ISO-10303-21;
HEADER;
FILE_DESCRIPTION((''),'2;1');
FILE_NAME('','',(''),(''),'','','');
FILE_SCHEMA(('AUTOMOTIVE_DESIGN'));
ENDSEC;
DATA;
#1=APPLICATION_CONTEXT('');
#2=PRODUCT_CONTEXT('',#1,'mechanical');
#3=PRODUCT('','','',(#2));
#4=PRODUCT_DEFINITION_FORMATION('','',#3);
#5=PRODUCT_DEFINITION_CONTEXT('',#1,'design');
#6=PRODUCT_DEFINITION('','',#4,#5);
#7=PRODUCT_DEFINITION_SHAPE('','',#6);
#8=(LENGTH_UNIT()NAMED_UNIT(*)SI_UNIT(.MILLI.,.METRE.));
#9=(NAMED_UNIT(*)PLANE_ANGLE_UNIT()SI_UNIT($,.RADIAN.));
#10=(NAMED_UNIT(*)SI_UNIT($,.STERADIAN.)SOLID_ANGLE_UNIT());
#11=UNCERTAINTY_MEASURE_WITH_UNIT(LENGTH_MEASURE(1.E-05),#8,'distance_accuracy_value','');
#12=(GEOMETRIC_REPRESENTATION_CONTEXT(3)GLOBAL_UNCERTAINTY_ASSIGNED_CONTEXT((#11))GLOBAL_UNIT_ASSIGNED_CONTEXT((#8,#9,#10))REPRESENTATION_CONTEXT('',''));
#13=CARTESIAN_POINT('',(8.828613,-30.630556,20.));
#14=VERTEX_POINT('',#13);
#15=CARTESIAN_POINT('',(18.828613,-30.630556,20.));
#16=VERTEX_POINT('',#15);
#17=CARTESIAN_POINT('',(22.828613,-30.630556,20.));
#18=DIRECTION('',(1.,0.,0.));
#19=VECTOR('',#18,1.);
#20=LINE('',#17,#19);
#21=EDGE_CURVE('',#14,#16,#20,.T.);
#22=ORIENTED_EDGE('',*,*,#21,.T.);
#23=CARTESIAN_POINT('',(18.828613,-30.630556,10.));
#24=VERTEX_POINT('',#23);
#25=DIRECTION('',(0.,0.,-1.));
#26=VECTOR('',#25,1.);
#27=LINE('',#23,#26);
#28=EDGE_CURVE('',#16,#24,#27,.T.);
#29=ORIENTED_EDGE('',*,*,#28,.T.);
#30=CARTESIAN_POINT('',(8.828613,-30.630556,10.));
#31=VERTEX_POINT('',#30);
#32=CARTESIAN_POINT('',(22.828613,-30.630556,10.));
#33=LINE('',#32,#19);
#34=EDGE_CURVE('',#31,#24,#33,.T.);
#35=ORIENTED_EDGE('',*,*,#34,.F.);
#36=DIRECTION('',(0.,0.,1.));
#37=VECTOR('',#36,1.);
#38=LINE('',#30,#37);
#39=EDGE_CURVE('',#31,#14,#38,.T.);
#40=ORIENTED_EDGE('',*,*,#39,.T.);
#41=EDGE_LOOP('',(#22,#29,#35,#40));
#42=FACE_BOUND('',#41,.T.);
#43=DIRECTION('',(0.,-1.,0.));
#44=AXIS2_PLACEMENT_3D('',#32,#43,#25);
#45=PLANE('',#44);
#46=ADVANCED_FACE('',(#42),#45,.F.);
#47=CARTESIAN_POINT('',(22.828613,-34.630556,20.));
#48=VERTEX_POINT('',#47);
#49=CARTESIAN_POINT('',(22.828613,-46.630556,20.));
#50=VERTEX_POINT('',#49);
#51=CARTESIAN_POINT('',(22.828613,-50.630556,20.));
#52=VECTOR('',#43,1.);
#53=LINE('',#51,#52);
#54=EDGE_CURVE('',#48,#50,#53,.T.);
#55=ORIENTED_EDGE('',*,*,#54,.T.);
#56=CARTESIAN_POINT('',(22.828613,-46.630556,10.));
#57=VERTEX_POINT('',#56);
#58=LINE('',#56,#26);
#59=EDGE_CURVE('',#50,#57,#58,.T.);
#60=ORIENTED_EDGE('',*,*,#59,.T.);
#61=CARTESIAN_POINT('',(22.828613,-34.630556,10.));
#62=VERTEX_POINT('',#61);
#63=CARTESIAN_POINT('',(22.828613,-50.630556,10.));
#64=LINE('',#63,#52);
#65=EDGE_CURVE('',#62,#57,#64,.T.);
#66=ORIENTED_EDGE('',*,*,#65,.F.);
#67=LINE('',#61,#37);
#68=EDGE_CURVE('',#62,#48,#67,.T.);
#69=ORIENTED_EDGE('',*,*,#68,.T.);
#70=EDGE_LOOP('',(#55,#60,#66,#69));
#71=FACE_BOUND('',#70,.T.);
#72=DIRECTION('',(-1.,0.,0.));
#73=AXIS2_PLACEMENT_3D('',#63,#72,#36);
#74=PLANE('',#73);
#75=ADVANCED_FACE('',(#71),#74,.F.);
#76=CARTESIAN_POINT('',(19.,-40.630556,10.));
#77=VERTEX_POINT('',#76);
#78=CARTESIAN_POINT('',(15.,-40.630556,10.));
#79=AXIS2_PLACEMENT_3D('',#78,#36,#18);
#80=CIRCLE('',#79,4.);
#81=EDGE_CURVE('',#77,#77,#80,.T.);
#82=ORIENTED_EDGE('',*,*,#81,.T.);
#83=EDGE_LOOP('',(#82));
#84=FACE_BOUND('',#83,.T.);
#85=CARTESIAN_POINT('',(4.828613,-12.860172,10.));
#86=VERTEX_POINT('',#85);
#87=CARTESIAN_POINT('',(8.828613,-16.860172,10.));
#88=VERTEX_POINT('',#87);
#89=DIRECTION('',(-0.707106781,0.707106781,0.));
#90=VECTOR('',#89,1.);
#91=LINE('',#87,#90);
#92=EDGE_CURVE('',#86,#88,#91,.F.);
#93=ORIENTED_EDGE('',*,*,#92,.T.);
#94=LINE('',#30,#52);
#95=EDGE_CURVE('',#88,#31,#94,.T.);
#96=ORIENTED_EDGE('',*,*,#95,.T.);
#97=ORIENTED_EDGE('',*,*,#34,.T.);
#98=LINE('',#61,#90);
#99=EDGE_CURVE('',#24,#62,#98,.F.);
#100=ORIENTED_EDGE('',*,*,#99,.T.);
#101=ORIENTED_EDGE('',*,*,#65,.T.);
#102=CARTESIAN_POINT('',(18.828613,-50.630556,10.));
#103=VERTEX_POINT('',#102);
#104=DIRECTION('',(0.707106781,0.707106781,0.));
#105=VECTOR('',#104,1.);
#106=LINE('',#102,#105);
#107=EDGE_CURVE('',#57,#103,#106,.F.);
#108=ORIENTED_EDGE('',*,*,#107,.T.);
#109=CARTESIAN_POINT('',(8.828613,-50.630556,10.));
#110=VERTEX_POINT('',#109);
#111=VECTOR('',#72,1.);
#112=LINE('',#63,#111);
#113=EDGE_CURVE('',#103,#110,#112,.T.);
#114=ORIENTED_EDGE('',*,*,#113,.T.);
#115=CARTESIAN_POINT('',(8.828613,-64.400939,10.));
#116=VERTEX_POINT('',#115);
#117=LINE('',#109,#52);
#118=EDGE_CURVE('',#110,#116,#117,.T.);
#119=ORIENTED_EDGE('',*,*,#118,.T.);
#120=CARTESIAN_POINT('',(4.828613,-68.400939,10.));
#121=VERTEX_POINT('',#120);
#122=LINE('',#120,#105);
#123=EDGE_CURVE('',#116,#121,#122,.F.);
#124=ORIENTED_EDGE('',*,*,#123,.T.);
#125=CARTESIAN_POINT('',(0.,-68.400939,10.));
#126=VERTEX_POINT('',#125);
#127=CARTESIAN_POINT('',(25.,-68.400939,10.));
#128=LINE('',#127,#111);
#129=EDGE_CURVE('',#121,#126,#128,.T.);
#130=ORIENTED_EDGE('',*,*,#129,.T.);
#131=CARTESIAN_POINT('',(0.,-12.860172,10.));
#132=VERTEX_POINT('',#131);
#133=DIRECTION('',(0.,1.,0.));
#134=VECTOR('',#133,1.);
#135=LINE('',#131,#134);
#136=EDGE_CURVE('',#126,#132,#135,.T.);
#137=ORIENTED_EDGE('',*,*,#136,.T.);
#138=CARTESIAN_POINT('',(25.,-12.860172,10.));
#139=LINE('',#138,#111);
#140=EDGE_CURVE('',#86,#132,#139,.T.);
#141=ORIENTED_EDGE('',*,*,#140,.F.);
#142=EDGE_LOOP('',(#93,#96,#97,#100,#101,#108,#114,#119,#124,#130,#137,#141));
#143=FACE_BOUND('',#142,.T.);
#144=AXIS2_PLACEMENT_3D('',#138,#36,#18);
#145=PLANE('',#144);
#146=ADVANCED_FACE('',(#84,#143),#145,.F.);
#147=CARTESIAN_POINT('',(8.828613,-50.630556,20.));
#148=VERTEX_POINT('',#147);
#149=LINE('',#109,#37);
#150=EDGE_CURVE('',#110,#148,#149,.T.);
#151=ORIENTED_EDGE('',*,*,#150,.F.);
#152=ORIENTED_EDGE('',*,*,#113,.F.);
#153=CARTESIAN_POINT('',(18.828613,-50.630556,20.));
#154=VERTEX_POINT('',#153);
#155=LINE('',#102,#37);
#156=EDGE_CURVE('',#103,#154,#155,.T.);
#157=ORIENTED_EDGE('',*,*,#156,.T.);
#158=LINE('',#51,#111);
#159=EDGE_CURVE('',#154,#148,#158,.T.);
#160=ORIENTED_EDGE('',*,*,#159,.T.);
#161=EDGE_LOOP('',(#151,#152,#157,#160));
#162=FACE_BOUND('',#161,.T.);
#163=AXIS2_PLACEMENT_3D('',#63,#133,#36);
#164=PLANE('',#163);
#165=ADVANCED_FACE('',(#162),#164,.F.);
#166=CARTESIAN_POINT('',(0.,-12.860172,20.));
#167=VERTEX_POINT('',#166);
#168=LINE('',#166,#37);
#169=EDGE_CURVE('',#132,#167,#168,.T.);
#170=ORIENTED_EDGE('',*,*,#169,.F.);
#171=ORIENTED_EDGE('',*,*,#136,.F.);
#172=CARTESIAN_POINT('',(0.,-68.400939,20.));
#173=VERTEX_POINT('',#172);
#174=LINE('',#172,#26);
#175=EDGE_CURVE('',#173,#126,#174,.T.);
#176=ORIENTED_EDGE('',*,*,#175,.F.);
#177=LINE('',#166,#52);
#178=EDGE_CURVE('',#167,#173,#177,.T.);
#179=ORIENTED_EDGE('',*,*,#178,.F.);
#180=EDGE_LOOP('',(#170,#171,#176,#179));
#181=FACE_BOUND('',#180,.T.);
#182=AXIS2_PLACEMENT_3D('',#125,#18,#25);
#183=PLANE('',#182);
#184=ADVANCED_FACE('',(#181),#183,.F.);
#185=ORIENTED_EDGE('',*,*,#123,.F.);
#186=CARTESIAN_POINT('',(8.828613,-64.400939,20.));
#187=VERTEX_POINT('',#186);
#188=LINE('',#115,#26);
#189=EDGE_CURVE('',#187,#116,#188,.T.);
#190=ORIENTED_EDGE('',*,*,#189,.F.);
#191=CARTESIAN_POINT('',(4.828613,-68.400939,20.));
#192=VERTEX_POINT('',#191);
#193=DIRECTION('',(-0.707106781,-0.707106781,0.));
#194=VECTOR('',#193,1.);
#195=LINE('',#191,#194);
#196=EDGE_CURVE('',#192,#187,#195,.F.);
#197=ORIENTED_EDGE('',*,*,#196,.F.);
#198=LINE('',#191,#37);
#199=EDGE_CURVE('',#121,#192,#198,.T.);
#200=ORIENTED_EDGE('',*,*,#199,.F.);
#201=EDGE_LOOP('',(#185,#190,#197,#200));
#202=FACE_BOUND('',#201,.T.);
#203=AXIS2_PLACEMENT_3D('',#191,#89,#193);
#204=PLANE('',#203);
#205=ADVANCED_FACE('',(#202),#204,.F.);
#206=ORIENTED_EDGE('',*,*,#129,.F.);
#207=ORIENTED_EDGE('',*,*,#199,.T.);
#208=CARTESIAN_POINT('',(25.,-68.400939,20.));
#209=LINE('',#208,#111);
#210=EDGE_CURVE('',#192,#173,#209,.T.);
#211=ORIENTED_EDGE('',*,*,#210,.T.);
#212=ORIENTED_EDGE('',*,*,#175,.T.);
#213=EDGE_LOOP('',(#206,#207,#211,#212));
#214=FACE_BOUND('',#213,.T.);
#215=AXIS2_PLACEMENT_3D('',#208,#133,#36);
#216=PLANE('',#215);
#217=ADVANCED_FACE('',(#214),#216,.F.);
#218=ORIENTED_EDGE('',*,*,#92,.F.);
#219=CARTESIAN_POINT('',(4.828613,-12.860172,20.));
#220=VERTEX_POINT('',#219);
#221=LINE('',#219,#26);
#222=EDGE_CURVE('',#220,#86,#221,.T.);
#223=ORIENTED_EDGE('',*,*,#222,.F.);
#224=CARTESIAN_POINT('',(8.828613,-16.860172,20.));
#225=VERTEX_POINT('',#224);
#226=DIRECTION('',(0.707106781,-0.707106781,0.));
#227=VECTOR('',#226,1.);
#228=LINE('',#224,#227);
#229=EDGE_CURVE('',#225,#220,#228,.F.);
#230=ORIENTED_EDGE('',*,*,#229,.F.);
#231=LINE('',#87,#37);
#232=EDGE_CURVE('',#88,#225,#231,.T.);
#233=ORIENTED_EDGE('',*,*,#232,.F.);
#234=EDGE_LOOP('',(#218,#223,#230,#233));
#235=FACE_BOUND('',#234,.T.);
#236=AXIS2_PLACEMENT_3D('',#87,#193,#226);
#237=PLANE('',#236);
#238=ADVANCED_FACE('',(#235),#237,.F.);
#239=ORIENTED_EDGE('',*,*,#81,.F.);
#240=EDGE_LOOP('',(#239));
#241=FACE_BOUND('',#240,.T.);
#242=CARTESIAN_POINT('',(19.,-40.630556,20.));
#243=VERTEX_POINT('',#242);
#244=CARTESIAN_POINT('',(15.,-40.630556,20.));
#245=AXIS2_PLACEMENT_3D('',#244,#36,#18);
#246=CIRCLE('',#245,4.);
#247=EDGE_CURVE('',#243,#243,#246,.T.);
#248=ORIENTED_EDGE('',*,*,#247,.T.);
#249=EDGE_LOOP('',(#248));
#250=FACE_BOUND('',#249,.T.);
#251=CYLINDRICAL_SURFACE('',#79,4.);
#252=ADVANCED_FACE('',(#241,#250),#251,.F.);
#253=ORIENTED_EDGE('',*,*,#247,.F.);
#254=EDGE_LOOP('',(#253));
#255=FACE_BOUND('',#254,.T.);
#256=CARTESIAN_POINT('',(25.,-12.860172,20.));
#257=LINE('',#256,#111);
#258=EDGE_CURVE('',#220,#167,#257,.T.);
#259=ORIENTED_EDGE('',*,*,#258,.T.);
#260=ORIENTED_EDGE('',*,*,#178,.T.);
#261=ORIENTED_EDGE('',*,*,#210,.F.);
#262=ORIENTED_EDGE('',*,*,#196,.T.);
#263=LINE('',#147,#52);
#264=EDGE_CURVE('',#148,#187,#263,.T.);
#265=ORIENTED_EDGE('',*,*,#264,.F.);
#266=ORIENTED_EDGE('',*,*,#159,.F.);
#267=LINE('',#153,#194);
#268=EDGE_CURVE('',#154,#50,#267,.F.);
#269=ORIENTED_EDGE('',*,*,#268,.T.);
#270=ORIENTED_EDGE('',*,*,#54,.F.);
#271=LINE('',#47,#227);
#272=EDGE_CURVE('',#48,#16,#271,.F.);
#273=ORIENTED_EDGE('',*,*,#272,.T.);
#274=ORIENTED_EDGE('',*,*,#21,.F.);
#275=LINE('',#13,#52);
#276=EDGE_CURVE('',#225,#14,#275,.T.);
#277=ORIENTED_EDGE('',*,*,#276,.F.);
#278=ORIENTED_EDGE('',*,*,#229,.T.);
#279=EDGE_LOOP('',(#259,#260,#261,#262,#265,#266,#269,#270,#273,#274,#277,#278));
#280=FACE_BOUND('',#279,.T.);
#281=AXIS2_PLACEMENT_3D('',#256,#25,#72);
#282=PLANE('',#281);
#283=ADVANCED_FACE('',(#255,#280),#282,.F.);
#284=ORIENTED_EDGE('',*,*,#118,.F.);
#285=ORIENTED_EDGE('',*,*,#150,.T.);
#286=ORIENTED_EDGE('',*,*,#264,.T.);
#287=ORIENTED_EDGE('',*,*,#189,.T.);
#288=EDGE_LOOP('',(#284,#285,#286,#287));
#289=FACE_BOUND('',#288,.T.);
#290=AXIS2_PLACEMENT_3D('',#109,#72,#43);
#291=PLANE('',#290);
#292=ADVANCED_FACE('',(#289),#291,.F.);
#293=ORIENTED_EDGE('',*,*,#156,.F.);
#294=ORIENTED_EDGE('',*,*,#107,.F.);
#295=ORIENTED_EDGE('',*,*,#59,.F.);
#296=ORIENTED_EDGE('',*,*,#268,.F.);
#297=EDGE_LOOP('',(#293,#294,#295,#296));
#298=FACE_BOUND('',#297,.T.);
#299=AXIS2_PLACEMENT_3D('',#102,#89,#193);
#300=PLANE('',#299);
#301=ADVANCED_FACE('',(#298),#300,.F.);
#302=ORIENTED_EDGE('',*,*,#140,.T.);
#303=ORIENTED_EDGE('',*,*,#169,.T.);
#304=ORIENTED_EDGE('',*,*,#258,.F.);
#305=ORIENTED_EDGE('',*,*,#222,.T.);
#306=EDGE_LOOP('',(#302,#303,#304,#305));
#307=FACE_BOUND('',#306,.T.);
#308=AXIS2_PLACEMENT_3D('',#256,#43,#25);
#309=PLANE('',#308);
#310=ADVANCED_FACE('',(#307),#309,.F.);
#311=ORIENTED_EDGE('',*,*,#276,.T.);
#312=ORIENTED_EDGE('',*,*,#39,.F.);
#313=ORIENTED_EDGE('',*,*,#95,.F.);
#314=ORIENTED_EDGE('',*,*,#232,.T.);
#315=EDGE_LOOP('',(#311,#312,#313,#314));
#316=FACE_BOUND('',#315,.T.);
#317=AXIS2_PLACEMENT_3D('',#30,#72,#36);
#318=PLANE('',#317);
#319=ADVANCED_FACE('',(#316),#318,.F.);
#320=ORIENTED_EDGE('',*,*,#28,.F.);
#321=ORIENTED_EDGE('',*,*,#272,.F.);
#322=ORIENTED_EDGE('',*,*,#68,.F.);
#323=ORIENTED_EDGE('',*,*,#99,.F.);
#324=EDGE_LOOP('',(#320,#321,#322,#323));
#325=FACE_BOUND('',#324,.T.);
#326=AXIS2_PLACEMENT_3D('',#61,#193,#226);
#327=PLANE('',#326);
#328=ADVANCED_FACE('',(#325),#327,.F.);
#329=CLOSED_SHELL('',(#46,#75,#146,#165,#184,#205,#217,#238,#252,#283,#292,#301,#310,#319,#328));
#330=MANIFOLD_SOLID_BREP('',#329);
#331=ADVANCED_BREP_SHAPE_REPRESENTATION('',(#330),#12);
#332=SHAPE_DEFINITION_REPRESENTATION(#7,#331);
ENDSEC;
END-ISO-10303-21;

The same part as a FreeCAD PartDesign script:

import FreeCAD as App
import Part
import Sketcher
Q = App.Units.Quantity


def edges_at(feature, points):
    """Names of the edges that pass closest to the given points."""
    edges = feature.Shape.Edges
    near = lambda p: min(range(len(edges)), key=lambda i: edges[i].distToShape(Part.Vertex(*p))[0])
    return sorted({f"Edge{near(p) + 1}" for p in points})


def add_polygon(sketch, points):
    """Adds a closed chain of lines whose ends are joined by coincident constraints."""
    first, n = sketch.GeometryCount, len(points)
    for a, b in zip(points, points[1:] + points[:1]):
        sketch.addGeometry(Part.LineSegment(App.Vector(*a, 0), App.Vector(*b, 0)), False)
    for i in range(n):
        sketch.addConstraint(Sketcher.Constraint("Coincident", first + i, 2, first + (i + 1) % n, 1))

doc = App.newDocument("Part")
params = doc.addObject("Spreadsheet::Sheet", "Params")
for row, (alias, value) in enumerate([
    ("sketch1_height", "10 mm"),
    ("pad1_length", "25 mm"),
    ("sketch2_diameter", "8 mm"),
    ("sketch3_width", "14 mm"),
    ("sketch3_height", "20 mm"),
    ("chamfer_size", "4 mm"),
], start=1):
    params.set(f"A{row}", alias)
    params.set(f"B{row}", "=" + value)
    params.setAlias(f"B{row}", alias)

body = doc.addObject("PartDesign::Body", "Body")

sketch1 = body.newObject("Sketcher::SketchObject", "Sketch")
sketch1.AttachmentSupport = (doc.getObject("YZ_Plane"), [""])
sketch1.MapMode = "FlatFace"
add_polygon(sketch1, [(-13, 20), (-68, 20), (-68, 10), (-13, 10)])
sketch1.addConstraint([
    Sketcher.Constraint("Horizontal", 0),
    Sketcher.Constraint("Vertical", 1),
    Sketcher.Constraint("Horizontal", 2),
    Sketcher.Constraint("Vertical", 3),
    Sketcher.Constraint("DistanceY", 1, 2, 1, 1, Q("10 mm")),
    Sketcher.Constraint("DistanceY", -1, 1, 0, 2, Q("20 mm")),
    Sketcher.Constraint("DistanceX", 0, 2, 0, 1, Q("55.540767 mm")),
    Sketcher.Constraint("DistanceX", 0, 2, -1, 1, Q("68.400939 mm")),
])
sketch1.setExpression("Constraints[8]", "Params.sketch1_height")
pad1 = body.newObject("PartDesign::Pad", "Pad")
pad1.Profile = sketch1
pad1.setExpression("Length", "Params.pad1_length")

sketch2 = body.newObject("Sketcher::SketchObject", "Sketch001")
sketch2.AttachmentSupport = (doc.getObject("XY_Plane"), [""])
sketch2.MapMode = "FlatFace"
sketch2.AttachmentOffset = App.Placement(App.Vector(0, 0, 20), App.Rotation())
sketch2.addGeometry(Part.Circle(App.Vector(15, -40.6, 0), App.Vector(0, 0, 1), 4), False)
sketch2.addConstraint([
    Sketcher.Constraint("Diameter", 0, Q("8 mm")),
    Sketcher.Constraint("DistanceX", -1, 1, 0, 3, Q("15 mm")),
    Sketcher.Constraint("DistanceY", 0, 3, -1, 1, Q("40.630556 mm")),
])
sketch2.setExpression("Constraints[0]", "Params.sketch2_diameter")
pocket1 = body.newObject("PartDesign::Pocket", "Pocket")
pocket1.Profile = sketch2
pocket1.Type = "ThroughAll"

sketch3 = body.newObject("Sketcher::SketchObject", "Sketch002")
sketch3.AttachmentSupport = (doc.getObject("XY_Plane"), [""])
sketch3.MapMode = "FlatFace"
sketch3.AttachmentOffset = App.Placement(App.Vector(0, 0, 20), App.Rotation())
add_polygon(sketch3, [(23, -31), (23, -51), (9, -51), (9, -68), (25, -68), (25, -13), (9, -13), (9, -31)])
sketch3.addConstraint([
    Sketcher.Constraint("Vertical", 0),
    Sketcher.Constraint("Horizontal", 1),
    Sketcher.Constraint("Vertical", 2),
    Sketcher.Constraint("Horizontal", 3),
    Sketcher.Constraint("Vertical", 4),
    Sketcher.Constraint("Horizontal", 5),
    Sketcher.Constraint("Vertical", 6),
    Sketcher.Constraint("Horizontal", 7),
    Sketcher.Constraint("Vertical", 2, 2, 5, 2),
    Sketcher.Constraint("Equal", 2, 6),
    Sketcher.Constraint("DistanceX", 1, 2, 1, 1, Q("14 mm")),
    Sketcher.Constraint("DistanceY", 0, 2, 0, 1, Q("20 mm")),
    Sketcher.Constraint("DistanceX", -1, 1, 3, 2, Q("25 mm")),
    Sketcher.Constraint("DistanceX", 3, 1, 3, 2, Q("16.171387 mm")),
    Sketcher.Constraint("DistanceY", 2, 2, 2, 1, Q("17.770384 mm")),
    Sketcher.Constraint("DistanceY", 2, 2, -1, 1, Q("68.400939 mm")),
])
sketch3.setExpression("Constraints[18]", "Params.sketch3_width")
sketch3.setExpression("Constraints[19]", "Params.sketch3_height")
pocket2 = body.newObject("PartDesign::Pocket", "Pocket001")
pocket2.Profile = sketch3
pocket2.Type = "ThroughAll"
doc.recompute()

chamfer = body.newObject("PartDesign::Chamfer", "Chamfer")
chamfer.Base = (pocket2, edges_at(pocket2, [
    (22.829, -30.631, 15),
    (8.829, -12.86, 15),
    (8.829, -68.401, 15),
    (22.829, -50.631, 15),
]))
chamfer.setExpression("Size", "Params.chamfer_size")

doc.recompute()
